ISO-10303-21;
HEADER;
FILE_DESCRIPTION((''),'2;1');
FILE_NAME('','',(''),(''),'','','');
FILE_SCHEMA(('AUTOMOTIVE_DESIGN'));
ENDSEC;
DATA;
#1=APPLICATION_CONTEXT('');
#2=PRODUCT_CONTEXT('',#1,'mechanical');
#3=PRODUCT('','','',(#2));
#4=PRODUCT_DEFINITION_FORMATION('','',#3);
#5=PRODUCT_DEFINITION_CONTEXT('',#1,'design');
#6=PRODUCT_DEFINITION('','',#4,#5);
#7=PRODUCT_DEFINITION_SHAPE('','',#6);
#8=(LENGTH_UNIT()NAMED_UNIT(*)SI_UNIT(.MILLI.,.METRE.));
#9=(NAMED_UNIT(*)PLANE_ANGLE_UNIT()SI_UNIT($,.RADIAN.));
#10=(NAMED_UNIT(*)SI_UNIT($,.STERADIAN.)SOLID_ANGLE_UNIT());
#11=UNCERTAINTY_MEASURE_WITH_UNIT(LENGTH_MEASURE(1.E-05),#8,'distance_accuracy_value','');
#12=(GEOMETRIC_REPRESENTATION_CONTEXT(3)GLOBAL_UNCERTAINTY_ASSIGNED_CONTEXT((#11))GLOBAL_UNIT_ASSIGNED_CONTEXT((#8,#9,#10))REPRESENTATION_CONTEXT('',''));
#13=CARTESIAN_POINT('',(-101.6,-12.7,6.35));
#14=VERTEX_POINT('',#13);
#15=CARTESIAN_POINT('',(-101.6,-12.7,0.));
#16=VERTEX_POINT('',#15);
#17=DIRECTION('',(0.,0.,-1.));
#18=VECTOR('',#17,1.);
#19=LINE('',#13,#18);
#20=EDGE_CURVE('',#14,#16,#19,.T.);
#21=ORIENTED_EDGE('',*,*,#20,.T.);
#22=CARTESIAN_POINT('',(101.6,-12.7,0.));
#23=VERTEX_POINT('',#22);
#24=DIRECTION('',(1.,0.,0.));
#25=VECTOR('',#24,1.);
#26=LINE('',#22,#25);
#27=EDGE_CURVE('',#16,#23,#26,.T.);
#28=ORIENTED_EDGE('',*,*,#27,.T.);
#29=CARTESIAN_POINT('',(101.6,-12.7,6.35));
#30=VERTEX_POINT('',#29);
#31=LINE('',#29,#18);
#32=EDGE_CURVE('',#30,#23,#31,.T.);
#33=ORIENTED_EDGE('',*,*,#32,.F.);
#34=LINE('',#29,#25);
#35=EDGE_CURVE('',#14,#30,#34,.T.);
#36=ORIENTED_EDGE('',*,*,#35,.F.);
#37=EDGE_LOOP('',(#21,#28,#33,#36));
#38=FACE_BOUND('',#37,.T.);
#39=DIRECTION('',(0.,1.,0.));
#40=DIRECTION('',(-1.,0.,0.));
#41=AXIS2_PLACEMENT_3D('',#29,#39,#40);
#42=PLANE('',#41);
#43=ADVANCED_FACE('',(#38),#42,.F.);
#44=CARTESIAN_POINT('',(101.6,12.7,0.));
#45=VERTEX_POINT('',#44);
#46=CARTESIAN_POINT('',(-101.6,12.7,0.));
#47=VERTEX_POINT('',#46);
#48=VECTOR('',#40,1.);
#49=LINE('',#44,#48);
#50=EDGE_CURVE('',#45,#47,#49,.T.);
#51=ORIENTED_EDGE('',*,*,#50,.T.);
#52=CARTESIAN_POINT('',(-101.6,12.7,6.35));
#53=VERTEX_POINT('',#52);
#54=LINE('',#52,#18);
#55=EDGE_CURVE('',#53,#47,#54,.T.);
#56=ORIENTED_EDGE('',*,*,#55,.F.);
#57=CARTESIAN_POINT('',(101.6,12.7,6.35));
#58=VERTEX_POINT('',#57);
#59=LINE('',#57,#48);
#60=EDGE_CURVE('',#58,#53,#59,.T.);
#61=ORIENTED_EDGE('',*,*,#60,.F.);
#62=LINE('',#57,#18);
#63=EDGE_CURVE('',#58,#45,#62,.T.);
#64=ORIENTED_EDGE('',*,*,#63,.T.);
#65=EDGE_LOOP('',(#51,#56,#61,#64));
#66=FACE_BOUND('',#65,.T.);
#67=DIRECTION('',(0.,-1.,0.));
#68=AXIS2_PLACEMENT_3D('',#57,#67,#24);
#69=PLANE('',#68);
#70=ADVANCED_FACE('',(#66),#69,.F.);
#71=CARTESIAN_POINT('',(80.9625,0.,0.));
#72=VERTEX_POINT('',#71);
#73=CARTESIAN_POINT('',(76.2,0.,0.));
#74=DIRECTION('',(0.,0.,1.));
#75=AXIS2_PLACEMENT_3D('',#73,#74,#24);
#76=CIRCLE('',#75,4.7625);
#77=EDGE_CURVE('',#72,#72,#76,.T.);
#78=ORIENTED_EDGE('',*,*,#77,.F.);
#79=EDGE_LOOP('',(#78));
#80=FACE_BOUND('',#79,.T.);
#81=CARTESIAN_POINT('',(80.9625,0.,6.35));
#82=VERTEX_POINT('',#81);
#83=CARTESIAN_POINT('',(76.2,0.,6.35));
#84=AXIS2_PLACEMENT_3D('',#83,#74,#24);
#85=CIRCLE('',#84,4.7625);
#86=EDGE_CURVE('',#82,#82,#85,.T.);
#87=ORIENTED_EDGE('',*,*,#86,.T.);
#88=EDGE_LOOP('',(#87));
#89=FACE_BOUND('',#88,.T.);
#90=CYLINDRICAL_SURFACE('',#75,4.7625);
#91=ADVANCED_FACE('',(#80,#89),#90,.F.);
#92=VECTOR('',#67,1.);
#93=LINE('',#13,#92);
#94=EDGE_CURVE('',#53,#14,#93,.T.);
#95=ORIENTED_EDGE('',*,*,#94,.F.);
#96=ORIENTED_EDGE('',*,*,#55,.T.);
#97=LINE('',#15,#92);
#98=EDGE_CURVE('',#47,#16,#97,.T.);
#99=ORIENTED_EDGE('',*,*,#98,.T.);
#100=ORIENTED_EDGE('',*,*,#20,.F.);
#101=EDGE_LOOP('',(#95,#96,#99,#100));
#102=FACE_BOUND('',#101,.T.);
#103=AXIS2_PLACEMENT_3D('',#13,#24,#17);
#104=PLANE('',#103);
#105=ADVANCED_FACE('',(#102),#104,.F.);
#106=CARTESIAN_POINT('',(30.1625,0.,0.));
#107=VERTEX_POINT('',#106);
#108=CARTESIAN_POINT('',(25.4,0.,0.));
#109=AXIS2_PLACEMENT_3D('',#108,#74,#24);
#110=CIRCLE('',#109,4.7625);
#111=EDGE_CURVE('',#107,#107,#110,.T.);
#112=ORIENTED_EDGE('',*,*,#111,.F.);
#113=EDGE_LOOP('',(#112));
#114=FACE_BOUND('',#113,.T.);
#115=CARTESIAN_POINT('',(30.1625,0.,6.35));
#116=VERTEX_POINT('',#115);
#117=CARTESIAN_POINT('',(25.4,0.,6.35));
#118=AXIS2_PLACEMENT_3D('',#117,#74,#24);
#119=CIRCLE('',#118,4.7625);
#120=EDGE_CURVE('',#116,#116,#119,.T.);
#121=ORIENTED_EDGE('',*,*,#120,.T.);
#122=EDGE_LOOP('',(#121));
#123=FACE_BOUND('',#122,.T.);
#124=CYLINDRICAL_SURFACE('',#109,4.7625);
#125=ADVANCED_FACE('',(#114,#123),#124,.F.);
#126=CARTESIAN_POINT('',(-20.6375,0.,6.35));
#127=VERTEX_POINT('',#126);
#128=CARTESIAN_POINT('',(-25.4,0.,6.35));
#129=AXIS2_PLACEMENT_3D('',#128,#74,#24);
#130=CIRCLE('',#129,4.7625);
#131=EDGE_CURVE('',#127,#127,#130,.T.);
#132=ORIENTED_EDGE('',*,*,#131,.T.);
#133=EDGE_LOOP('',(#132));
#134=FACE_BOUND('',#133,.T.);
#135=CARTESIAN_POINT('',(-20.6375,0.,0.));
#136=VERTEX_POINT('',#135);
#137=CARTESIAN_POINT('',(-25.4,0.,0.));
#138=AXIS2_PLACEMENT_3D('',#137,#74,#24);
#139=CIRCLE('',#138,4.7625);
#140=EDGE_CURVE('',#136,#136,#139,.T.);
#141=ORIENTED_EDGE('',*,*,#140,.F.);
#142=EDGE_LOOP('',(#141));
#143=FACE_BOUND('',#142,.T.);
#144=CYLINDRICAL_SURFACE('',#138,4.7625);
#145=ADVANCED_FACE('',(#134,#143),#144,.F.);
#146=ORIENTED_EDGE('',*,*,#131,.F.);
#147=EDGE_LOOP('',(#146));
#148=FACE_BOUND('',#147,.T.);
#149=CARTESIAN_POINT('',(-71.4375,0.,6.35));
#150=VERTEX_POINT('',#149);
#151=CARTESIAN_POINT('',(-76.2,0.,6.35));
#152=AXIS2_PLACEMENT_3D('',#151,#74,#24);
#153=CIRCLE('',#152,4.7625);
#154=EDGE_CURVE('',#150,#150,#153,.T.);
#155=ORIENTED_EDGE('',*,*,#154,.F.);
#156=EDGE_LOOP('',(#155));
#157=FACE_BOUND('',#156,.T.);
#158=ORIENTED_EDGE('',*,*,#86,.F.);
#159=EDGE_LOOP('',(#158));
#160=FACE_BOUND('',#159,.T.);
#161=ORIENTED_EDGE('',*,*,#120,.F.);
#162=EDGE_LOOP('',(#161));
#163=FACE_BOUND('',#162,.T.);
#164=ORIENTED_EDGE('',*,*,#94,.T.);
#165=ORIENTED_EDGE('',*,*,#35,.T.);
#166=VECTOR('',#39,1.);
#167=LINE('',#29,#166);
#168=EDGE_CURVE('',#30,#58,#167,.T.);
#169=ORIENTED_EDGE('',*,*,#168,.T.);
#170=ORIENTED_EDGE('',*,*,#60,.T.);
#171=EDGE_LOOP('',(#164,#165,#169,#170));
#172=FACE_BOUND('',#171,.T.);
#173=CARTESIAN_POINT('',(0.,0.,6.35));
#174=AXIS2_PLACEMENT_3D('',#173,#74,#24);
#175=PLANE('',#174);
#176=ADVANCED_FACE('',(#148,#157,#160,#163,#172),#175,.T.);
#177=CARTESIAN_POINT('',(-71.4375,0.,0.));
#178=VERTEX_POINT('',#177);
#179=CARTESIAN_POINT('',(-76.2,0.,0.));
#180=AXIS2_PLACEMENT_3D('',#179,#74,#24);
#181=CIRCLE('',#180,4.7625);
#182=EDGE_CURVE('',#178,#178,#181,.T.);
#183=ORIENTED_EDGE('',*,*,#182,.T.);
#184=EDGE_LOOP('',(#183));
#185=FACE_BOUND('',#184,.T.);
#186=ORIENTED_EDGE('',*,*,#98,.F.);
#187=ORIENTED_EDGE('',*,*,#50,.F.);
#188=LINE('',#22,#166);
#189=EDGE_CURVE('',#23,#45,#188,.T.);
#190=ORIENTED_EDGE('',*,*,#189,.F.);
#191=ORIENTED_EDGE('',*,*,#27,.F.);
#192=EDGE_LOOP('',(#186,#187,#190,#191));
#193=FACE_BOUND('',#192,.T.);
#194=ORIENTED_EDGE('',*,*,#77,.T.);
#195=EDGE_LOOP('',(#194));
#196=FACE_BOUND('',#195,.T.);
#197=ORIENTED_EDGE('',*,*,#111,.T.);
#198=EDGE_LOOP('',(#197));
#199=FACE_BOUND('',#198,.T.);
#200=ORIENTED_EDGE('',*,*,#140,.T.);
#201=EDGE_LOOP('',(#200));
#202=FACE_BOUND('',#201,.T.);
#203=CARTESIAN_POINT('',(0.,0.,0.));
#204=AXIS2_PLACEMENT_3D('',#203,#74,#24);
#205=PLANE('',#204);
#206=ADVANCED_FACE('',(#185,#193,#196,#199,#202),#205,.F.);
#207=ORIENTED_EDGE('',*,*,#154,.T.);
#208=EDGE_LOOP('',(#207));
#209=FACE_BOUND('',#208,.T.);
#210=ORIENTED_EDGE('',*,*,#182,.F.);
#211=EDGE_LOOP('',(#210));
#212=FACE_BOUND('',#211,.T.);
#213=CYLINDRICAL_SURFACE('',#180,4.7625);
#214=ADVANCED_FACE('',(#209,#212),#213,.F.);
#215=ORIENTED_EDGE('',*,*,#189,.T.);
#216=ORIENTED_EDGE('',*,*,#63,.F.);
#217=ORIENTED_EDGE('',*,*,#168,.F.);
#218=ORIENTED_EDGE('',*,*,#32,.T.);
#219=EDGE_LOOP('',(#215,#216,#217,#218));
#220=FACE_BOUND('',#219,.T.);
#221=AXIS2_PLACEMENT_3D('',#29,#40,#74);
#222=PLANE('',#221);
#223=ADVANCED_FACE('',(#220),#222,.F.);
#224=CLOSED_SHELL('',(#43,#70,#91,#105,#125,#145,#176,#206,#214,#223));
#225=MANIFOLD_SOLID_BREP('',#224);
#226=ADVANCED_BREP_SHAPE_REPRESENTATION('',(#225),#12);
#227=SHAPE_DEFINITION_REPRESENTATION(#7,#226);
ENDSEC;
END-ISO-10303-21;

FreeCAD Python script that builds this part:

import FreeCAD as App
import Part
import Sketcher
Q = App.Units.Quantity

doc = App.newDocument("Part")
body = doc.addObject("PartDesign::Body", "Body")

# Sketch on XY plane
sketch1 = body.newObject("Sketcher::SketchObject", "Sketch")
sketch1.AttachmentSupport = (doc.getObject("XY_Plane"), [""])
sketch1.MapMode = "FlatFace"
sketch1.addGeometry([
    Part.LineSegment(App.Vector(-102, 13, 0), App.Vector(-102, -13, 0)),
    Part.LineSegment(App.Vector(-102, -13, 0), App.Vector(102, -13, 0)),
    Part.LineSegment(App.Vector(102, -13, 0), App.Vector(102, 13, 0)),
    Part.LineSegment(App.Vector(102, 13, 0), App.Vector(-102, 13, 0)),
], False)
sketch1.addConstraint([
    Sketcher.Constraint("Coincident", 0, 2, 1, 1),
    Sketcher.Constraint("Coincident", 1, 2, 2, 1),
    Sketcher.Constraint("Coincident", 2, 2, 3, 1),
    Sketcher.Constraint("Coincident", 3, 2, 0, 1),
    Sketcher.Constraint("Vertical", 0),
    Sketcher.Constraint("Horizontal", 1),
    Sketcher.Constraint("Vertical", 2),
    Sketcher.Constraint("Horizontal", 3),
    Sketcher.Constraint("Symmetric", 0, 2, 2, 2, -1, 1),
    Sketcher.Constraint("DistanceX", 1, 1, 1, 2, Q("8 in")),
    Sketcher.Constraint("DistanceY", 0, 2, 0, 1, Q("1 in")),
])
pad1 = body.newObject("PartDesign::Pad", "Pad")
pad1.Profile = sketch1
pad1.Length = Q("0.25 in")

# Sketch on XY plane
sketch2 = body.newObject("Sketcher::SketchObject", "Sketch001")
sketch2.AttachmentSupport = (doc.getObject("XY_Plane"), [""])
sketch2.MapMode = "FlatFace"
sketch2.AttachmentOffset = App.Placement(App.Vector(0, 0, 0.25 * 25.4), App.Rotation())
sketch2.addGeometry(Part.Circle(App.Vector(-76.2, 0, 0), App.Vector(0, 0, 1), 4.8), False)
sketch2.addConstraint([
    Sketcher.Constraint("PointOnObject", 0, 3, -1),
    Sketcher.Constraint("Diameter", 0, Q("0.375 in")),
    Sketcher.Constraint("DistanceX", 0, 3, -1, 1, Q("3 in")),
])
pocket1 = body.newObject("PartDesign::Pocket", "Pocket")
pocket1.Profile = sketch2
pocket1.Type = "ThroughAll"
doc.recompute()

linearpattern = body.newObject("PartDesign::LinearPattern", "LinearPattern")
linearpattern.Originals = [pocket1]
linearpattern.Direction = (doc.getObject("X_Axis"), [""])
linearpattern.Mode = "offset"
linearpattern.Offset = Q("2 in")
linearpattern.Occurrences = 4
body.Tip = linearpattern

doc.recompute()
